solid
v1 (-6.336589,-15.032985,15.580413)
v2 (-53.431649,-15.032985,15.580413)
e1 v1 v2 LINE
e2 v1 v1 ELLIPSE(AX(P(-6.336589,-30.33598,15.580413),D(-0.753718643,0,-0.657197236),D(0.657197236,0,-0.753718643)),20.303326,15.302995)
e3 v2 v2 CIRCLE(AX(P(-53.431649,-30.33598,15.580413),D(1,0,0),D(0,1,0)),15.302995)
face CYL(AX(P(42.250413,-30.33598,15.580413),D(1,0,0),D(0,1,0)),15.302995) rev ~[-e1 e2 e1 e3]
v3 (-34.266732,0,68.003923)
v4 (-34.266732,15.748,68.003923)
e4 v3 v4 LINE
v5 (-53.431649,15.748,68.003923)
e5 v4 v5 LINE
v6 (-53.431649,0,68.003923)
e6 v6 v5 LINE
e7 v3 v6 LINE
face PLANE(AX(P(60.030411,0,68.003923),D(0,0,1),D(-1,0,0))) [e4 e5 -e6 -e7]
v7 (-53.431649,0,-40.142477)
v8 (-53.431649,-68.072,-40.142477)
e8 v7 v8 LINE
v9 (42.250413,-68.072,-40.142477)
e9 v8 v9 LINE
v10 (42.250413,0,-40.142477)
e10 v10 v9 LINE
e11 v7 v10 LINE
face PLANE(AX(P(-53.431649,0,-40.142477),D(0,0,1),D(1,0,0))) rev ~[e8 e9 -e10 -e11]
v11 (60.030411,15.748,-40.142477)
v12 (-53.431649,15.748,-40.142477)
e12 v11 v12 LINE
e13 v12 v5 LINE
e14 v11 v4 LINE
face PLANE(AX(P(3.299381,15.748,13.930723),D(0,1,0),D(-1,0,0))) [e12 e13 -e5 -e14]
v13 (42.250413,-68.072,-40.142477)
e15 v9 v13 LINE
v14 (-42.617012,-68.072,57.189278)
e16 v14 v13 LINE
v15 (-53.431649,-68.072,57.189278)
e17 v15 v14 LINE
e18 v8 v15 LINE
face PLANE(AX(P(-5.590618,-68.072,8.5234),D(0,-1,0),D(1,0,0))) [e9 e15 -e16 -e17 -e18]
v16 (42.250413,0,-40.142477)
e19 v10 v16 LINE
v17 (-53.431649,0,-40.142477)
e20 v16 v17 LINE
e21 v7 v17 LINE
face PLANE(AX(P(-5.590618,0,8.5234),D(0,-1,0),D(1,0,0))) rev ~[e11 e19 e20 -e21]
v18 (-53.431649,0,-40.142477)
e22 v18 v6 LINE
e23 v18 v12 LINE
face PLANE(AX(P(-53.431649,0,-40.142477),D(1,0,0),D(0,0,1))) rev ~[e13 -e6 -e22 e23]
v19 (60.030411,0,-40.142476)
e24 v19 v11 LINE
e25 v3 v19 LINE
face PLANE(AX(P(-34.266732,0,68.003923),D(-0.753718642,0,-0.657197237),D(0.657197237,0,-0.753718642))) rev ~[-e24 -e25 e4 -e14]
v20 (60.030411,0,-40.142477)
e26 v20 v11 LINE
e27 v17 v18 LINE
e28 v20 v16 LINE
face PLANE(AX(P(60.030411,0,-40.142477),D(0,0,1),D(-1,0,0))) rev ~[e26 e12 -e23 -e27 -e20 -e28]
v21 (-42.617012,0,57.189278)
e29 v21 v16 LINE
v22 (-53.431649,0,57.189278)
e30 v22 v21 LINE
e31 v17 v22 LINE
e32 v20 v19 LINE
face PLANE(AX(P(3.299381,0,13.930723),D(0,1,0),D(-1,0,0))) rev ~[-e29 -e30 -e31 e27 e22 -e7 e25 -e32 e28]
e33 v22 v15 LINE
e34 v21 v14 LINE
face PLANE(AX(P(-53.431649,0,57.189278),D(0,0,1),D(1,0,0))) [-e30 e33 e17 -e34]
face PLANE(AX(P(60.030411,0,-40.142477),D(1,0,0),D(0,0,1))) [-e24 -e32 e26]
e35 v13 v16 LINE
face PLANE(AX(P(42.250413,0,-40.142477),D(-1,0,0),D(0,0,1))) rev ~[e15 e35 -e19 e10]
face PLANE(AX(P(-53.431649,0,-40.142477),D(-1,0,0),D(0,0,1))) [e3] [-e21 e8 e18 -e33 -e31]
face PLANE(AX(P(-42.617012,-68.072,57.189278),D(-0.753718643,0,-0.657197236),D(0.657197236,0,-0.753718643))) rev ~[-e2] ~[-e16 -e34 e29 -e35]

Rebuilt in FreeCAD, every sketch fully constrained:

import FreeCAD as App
import Part
import Sketcher
from FreeCAD import Vector
Q = App.Units.Quantity


def add_polygon(sketch, points):
    """Adds a closed chain of lines whose ends are joined by coincident constraints."""
    first, n = sketch.GeometryCount, len(points)
    for a, b in zip(points, points[1:] + points[:1]):
        sketch.addGeometry(Part.LineSegment(App.Vector(*a, 0), App.Vector(*b, 0)), False)
    for i in range(n):
        sketch.addConstraint(Sketcher.Constraint("Coincident", first + i, 2, first + (i + 1) % n, 1))

doc = App.newDocument("Part")
body = doc.addObject("PartDesign::Body", "Body")

sketch1 = body.newObject("Sketcher::SketchObject", "Sketch")
sketch1.AttachmentSupport = (doc.getObject("XZ_Plane"), [""])
sketch1.MapMode = "FlatFace"
add_polygon(sketch1, [(-53.431649, 57.189278), (-53.431649, -40.142477), (42.250413, -40.142477), (42.250413, 57.189278)])
sketch1.addConstraint([
    Sketcher.Constraint("Vertical", 0),
    Sketcher.Constraint("Horizontal", 1),
    Sketcher.Constraint("Vertical", 2),
    Sketcher.Constraint("Horizontal", 3),
    Sketcher.Constraint("DistanceX", 1, 1, 1, 2, 95.682062),
    Sketcher.Constraint("DistanceY", 0, 2, 0, 1, 97.331755),
    Sketcher.Constraint("DistanceX", 0, 2, -1, 1, 53.431649),
    Sketcher.Constraint("DistanceY", 0, 2, -1, 1, 40.142477),
])
pad1 = body.newObject("PartDesign::Pad", "Pad")
pad1.Profile = sketch1
pad1.Length = Q("2.68 in")

sketch2 = body.newObject("Sketcher::SketchObject", "Sketch001")
sketch2.AttachmentSupport = (doc.getObject("XZ_Plane"), [""])
sketch2.MapMode = "FlatFace"
add_polygon(sketch2, [(60.030411, 68.003923), (60.030411, -40.142477), (-53.431649, -40.142477), (-53.431649, 68.003923)])
sketch2.addConstraint([
    Sketcher.Constraint("Vertical", 0),
    Sketcher.Constraint("Horizontal", 1),
    Sketcher.Constraint("Vertical", 2),
    Sketcher.Constraint("Horizontal", 3),
    Sketcher.Constraint("DistanceY", 0, 2, 0, 1, 108.1464),
    Sketcher.Constraint("DistanceX", 1, 2, 1, 1, 113.462061),
    Sketcher.Constraint("DistanceX", -1, 1, 0, 2, 60.030411),
    Sketcher.Constraint("DistanceY", 0, 2, -1, 1, 40.142477),
])
pad2 = body.newObject("PartDesign::Pad", "Pad001")
pad2.Profile = sketch2
pad2.Length = Q("0.62 in")
pad2.Reversed = True

sketch3 = body.newObject("Sketcher::SketchObject", "Sketch002")
sketch3.AttachmentSupport = (doc.getObject("YZ_Plane"), [""])
sketch3.MapMode = "FlatFace"
sketch3.AttachmentOffset = App.Placement(Vector(0, 0, 42.250413), App.Rotation())
sketch3.addGeometry(Part.Circle(Vector(-30.33598, 15.580413, 0), Vector(0, 0, 1), 15.302995), False)
sketch3.addConstraint([
    Sketcher.Constraint("Diameter", 0, 30.60599),
    Sketcher.Constraint("DistanceX", 0, 3, -1, 1, 30.33598),
    Sketcher.Constraint("DistanceY", -1, 1, 0, 3, 15.580413),
])
pocket1 = body.newObject("PartDesign::Pocket", "Pocket")
pocket1.Profile = sketch3
pocket1.Length = Q("3.79 in")

sketch4 = body.newObject("Sketcher::SketchObject", "Sketch003")
sketch4.AttachmentSupport = (doc.getObject("XZ_Plane"), [""])
sketch4.MapMode = "FlatFace"
sketch4.AttachmentOffset = App.Placement(Vector(0, 0, 2.68 * 25.4), App.Rotation())
add_polygon(sketch4, [(-42.617012, 57.189278), (42.250413, -40.142477), (42.250413, 57.189278)])
sketch4.addConstraint([
    Sketcher.Constraint("Vertical", 1),
    Sketcher.Constraint("Horizontal", 2),
    Sketcher.Constraint("DistanceX", 2, 2, 2, 1, 84.867425),
    Sketcher.Constraint("DistanceY", 1, 1, 1, 2, 97.331755),
    Sketcher.Constraint("DistanceY", -1, 1, 1, 2, 57.189278),
    Sketcher.Constraint("DistanceX", -1, 1, 0, 2, 42.250413),
])
pocket2 = body.newObject("PartDesign::Pocket", "Pocket001")
pocket2.Profile = sketch4
pocket2.Length = Q("2.68 in")

sketch5 = body.newObject("Sketcher::SketchObject", "Sketch004")
sketch5.AttachmentSupport = (doc.getObject("XZ_Plane"), [""])
sketch5.MapMode = "FlatFace"
add_polygon(sketch5, [(-34.266732, 68.003923), (60.030412, -40.142477), (60.030412, 68.003923)])
sketch5.addConstraint([
    Sketcher.Constraint("Vertical", 1),
    Sketcher.Constraint("Horizontal", 2),
    Sketcher.Constraint("DistanceY", 1, 1, 1, 2, 108.1464),
    Sketcher.Constraint("Distance", 0, 143.48378),
    Sketcher.Constraint("DistanceX", -1, 1, 0, 2, 60.030412),
    Sketcher.Constraint("DistanceY", 0, 2, -1, 1, 40.142477),
])
pocket3 = body.newObject("PartDesign::Pocket", "Pocket002")
pocket3.Profile = sketch5
pocket3.Length = Q("1.29 in")

doc.recompute()
